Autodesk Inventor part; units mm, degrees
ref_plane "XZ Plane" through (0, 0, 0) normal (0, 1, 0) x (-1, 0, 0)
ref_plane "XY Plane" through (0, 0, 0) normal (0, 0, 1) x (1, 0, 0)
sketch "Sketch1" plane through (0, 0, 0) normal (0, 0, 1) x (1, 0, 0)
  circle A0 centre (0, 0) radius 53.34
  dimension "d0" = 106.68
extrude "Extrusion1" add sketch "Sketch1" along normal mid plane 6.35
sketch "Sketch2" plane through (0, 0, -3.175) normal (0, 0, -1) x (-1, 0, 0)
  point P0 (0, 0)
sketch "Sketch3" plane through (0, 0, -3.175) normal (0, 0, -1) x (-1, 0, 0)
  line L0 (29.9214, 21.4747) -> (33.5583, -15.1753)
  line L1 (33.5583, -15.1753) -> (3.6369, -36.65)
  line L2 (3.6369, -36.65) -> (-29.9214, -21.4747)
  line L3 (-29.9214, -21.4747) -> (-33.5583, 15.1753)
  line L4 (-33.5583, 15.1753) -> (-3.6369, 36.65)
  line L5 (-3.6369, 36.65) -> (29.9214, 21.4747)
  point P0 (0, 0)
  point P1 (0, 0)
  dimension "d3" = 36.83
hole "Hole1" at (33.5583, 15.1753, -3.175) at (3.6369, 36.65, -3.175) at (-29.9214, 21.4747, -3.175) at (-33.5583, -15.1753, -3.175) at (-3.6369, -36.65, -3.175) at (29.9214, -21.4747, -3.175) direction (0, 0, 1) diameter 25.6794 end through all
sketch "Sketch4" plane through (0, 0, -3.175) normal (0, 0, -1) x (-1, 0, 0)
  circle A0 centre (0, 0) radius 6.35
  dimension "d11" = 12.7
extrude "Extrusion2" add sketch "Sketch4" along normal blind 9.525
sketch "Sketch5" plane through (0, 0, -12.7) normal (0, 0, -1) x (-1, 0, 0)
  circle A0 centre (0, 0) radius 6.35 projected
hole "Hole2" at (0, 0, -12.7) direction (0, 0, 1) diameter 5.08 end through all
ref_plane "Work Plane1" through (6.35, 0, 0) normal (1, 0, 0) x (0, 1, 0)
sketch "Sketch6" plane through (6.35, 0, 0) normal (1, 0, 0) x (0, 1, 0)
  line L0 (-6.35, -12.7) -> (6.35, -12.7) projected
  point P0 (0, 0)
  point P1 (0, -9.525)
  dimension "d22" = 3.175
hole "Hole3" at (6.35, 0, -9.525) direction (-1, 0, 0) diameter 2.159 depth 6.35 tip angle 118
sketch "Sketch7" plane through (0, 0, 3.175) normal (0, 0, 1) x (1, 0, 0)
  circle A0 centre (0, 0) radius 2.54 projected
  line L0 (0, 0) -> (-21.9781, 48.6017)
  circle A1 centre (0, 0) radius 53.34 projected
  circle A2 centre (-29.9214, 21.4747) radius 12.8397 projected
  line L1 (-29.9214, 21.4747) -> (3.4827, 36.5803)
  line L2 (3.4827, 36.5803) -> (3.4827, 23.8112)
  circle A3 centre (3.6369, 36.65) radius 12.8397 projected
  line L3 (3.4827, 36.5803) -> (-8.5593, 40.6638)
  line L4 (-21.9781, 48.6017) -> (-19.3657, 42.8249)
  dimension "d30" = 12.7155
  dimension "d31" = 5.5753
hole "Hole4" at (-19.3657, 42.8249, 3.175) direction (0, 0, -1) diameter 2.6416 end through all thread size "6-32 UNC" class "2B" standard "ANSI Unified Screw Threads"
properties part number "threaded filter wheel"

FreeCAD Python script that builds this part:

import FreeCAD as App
import Part
import Sketcher

V = App.Vector
Q = App.Units.Quantity

doc = App.newDocument("Part")
body = doc.addObject("PartDesign::Body", "Body")

# Sketch on XY plane
sketch1 = body.newObject("Sketcher::SketchObject", "Sketch")
sketch1.AttachmentSupport = (doc.getObject("XY_Plane"), [""])
sketch1.MapMode = "FlatFace"
sketch1.addGeometry(Part.Circle(V(0, 0, 0), V(0, 0, 1), 53), False)
sketch1.addConstraint(Sketcher.Constraint("Coincident", 0, 3, -1, 1))
sketch1.addConstraint(Sketcher.Constraint("Diameter", 0, Q("4.2 in")))
pad1 = body.newObject("PartDesign::Pad", "Pad")
pad1.Profile = sketch1
pad1.Length = Q("0.25 in")
pad1.Midplane = True

# Sketch on XY plane
sketch2 = body.newObject("Sketcher::SketchObject", "Sketch001")
sketch2.AttachmentSupport = (doc.getObject("XY_Plane"), [""])
sketch2.MapMode = "FlatFace"
sketch2.AttachmentOffset = App.Placement(V(0, 0, -0.125 * 25.4), App.Rotation())
sketch2.addGeometry(Part.Circle(V(34, 15, 0), V(0, 0, 1), 13), False)
sketch2.addGeometry(Part.Circle(V(4, 37, 0), V(0, 0, 1), 13), False)
sketch2.addGeometry(Part.Circle(V(-30, 21, 0), V(0, 0, 1), 13), False)
sketch2.addGeometry(Part.Circle(V(-34, -15, 0), V(0, 0, 1), 13), False)
sketch2.addGeometry(Part.Circle(V(-4, -37, 0), V(0, 0, 1), 13), False)
sketch2.addGeometry(Part.Circle(V(30, -21, 0), V(0, 0, 1), 13), False)
sketch2.addConstraint(Sketcher.Constraint("Equal", 0, 1))
sketch2.addConstraint(Sketcher.Constraint("Equal", 1, 2))
sketch2.addConstraint(Sketcher.Constraint("Equal", 2, 3))
sketch2.addConstraint(Sketcher.Constraint("Equal", 3, 4))
sketch2.addConstraint(Sketcher.Constraint("Equal", 4, 5))
sketch2.addConstraint(Sketcher.Constraint("Symmetric", 0, 3, 3, 3, -1, 1))
sketch2.addConstraint(Sketcher.Constraint("Symmetric", 1, 3, 4, 3, -1, 1))
sketch2.addConstraint(Sketcher.Constraint("Symmetric", 2, 3, 5, 3, -1, 1))
sketch2.addConstraint(Sketcher.Constraint("Diameter", 0, Q("1.011 in")))
sketch2.addConstraint(Sketcher.Constraint("DistanceX", 2, 3, -1, 1, Q("1.178 in")))
sketch2.addConstraint(Sketcher.Constraint("DistanceX", 1, 3, 0, 3, Q("1.178 in")))
sketch2.addConstraint(Sketcher.Constraint("DistanceY", 0, 3, 2, 3, Q("0.248 in")))
sketch2.addConstraint(Sketcher.Constraint("DistanceX", -1, 1, 0, 3, Q("1.3212 in")))
sketch2.addConstraint(Sketcher.Constraint("DistanceY", 3, 3, 0, 3, Q("1.1949 in")))
sketch2.addConstraint(Sketcher.Constraint("DistanceY", -1, 1, 1, 3, 36.65))
doc.recompute()
hole = body.newObject("PartDesign::Hole", "Hole")
hole.Profile = sketch2
hole.ThreadType = "None"
hole.Diameter = Q("1.011 in")
hole.DepthType = "ThroughAll"
hole.Reversed = True

# Sketch on XY plane
sketch3 = body.newObject("Sketcher::SketchObject", "Sketch002")
sketch3.AttachmentSupport = (doc.getObject("XY_Plane"), [""])
sketch3.MapMode = "FlatFace"
sketch3.AttachmentOffset = App.Placement(V(0, 0, -0.125 * 25.4), App.Rotation())
sketch3.addGeometry(Part.Circle(V(0, 0, 0), V(0, 0, 1), 6), False)
sketch3.addConstraint(Sketcher.Constraint("Coincident", 0, 3, -1, 1))
sketch3.addConstraint(Sketcher.Constraint("Diameter", 0, Q("0.5 in")))
pad2 = body.newObject("PartDesign::Pad", "Pad001")
pad2.Profile = sketch3
pad2.Length = Q("0.375 in")
pad2.Reversed = True

# Sketch on XY plane
sketch4 = body.newObject("Sketcher::SketchObject", "Sketch003")
sketch4.AttachmentSupport = (doc.getObject("XY_Plane"), [""])
sketch4.MapMode = "FlatFace"
sketch4.AttachmentOffset = App.Placement(V(0, 0, -0.5 * 25.4), App.Rotation())
sketch4.addGeometry(Part.Circle(V(0, 0, 0), V(0, 0, 1), 2.5), False)
sketch4.addConstraint(Sketcher.Constraint("Coincident", 0, 3, -1, 1))
sketch4.addConstraint(Sketcher.Constraint("Diameter", 0, Q("0.2 in")))
doc.recompute()
hole2 = body.newObject("PartDesign::Hole", "Hole001")
hole2.Profile = sketch4
hole2.ThreadType = "None"
hole2.Diameter = Q("0.2 in")
hole2.DepthType = "ThroughAll"
hole2.Reversed = True

# Sketch on YZ plane
sketch5 = body.newObject("Sketcher::SketchObject", "Sketch004")
sketch5.AttachmentSupport = (doc.getObject("YZ_Plane"), [""])
sketch5.MapMode = "FlatFace"
sketch5.AttachmentOffset = App.Placement(V(0, 0, 0.25 * 25.4), App.Rotation())
sketch5.addGeometry(Part.Circle(V(0, -9.5, 0), V(0, 0, 1), 1.1), False)
sketch5.addConstraint(Sketcher.Constraint("PointOnObject", 0, 3, -2))
sketch5.addConstraint(Sketcher.Constraint("Diameter", 0, Q("0.085 in")))
sketch5.addConstraint(Sketcher.Constraint("DistanceY", 0, 3, -1, 1, Q("0.375 in")))
doc.recompute()
hole3 = body.newObject("PartDesign::Hole", "Hole002")
hole3.Profile = sketch5
hole3.ThreadType = "None"
hole3.Diameter = Q("0.085 in")
hole3.DepthType = "Dimension"
hole3.Depth = Q("0.25 in")
hole3.DrillPoint = "Angled"
hole3.DrillPointAngle = 118

# Sketch on XY plane
sketch6 = body.newObject("Sketcher::SketchObject", "Sketch005")
sketch6.AttachmentSupport = (doc.getObject("XY_Plane"), [""])
sketch6.MapMode = "FlatFace"
sketch6.AttachmentOffset = App.Placement(V(0, 0, 0.125 * 25.4), App.Rotation())
sketch6.addGeometry(Part.Circle(V(-19.4, 42.8, 0), V(0, 0, 1), 1.3), False)
sketch6.addConstraint(Sketcher.Constraint("Diameter", 0, Q("0.104 in")))
sketch6.addConstraint(Sketcher.Constraint("DistanceX", 0, 3, -1, 1, 19.3657))
sketch6.addConstraint(Sketcher.Constraint("DistanceY", -1, 1, 0, 3, 42.825))
doc.recompute()
hole4 = body.newObject("PartDesign::Hole", "Hole003")
hole4.Profile = sketch6
hole4.ThreadType = "None"
hole4.Diameter = Q("0.104 in")
hole4.DepthType = "ThroughAll"

doc.recompute()
